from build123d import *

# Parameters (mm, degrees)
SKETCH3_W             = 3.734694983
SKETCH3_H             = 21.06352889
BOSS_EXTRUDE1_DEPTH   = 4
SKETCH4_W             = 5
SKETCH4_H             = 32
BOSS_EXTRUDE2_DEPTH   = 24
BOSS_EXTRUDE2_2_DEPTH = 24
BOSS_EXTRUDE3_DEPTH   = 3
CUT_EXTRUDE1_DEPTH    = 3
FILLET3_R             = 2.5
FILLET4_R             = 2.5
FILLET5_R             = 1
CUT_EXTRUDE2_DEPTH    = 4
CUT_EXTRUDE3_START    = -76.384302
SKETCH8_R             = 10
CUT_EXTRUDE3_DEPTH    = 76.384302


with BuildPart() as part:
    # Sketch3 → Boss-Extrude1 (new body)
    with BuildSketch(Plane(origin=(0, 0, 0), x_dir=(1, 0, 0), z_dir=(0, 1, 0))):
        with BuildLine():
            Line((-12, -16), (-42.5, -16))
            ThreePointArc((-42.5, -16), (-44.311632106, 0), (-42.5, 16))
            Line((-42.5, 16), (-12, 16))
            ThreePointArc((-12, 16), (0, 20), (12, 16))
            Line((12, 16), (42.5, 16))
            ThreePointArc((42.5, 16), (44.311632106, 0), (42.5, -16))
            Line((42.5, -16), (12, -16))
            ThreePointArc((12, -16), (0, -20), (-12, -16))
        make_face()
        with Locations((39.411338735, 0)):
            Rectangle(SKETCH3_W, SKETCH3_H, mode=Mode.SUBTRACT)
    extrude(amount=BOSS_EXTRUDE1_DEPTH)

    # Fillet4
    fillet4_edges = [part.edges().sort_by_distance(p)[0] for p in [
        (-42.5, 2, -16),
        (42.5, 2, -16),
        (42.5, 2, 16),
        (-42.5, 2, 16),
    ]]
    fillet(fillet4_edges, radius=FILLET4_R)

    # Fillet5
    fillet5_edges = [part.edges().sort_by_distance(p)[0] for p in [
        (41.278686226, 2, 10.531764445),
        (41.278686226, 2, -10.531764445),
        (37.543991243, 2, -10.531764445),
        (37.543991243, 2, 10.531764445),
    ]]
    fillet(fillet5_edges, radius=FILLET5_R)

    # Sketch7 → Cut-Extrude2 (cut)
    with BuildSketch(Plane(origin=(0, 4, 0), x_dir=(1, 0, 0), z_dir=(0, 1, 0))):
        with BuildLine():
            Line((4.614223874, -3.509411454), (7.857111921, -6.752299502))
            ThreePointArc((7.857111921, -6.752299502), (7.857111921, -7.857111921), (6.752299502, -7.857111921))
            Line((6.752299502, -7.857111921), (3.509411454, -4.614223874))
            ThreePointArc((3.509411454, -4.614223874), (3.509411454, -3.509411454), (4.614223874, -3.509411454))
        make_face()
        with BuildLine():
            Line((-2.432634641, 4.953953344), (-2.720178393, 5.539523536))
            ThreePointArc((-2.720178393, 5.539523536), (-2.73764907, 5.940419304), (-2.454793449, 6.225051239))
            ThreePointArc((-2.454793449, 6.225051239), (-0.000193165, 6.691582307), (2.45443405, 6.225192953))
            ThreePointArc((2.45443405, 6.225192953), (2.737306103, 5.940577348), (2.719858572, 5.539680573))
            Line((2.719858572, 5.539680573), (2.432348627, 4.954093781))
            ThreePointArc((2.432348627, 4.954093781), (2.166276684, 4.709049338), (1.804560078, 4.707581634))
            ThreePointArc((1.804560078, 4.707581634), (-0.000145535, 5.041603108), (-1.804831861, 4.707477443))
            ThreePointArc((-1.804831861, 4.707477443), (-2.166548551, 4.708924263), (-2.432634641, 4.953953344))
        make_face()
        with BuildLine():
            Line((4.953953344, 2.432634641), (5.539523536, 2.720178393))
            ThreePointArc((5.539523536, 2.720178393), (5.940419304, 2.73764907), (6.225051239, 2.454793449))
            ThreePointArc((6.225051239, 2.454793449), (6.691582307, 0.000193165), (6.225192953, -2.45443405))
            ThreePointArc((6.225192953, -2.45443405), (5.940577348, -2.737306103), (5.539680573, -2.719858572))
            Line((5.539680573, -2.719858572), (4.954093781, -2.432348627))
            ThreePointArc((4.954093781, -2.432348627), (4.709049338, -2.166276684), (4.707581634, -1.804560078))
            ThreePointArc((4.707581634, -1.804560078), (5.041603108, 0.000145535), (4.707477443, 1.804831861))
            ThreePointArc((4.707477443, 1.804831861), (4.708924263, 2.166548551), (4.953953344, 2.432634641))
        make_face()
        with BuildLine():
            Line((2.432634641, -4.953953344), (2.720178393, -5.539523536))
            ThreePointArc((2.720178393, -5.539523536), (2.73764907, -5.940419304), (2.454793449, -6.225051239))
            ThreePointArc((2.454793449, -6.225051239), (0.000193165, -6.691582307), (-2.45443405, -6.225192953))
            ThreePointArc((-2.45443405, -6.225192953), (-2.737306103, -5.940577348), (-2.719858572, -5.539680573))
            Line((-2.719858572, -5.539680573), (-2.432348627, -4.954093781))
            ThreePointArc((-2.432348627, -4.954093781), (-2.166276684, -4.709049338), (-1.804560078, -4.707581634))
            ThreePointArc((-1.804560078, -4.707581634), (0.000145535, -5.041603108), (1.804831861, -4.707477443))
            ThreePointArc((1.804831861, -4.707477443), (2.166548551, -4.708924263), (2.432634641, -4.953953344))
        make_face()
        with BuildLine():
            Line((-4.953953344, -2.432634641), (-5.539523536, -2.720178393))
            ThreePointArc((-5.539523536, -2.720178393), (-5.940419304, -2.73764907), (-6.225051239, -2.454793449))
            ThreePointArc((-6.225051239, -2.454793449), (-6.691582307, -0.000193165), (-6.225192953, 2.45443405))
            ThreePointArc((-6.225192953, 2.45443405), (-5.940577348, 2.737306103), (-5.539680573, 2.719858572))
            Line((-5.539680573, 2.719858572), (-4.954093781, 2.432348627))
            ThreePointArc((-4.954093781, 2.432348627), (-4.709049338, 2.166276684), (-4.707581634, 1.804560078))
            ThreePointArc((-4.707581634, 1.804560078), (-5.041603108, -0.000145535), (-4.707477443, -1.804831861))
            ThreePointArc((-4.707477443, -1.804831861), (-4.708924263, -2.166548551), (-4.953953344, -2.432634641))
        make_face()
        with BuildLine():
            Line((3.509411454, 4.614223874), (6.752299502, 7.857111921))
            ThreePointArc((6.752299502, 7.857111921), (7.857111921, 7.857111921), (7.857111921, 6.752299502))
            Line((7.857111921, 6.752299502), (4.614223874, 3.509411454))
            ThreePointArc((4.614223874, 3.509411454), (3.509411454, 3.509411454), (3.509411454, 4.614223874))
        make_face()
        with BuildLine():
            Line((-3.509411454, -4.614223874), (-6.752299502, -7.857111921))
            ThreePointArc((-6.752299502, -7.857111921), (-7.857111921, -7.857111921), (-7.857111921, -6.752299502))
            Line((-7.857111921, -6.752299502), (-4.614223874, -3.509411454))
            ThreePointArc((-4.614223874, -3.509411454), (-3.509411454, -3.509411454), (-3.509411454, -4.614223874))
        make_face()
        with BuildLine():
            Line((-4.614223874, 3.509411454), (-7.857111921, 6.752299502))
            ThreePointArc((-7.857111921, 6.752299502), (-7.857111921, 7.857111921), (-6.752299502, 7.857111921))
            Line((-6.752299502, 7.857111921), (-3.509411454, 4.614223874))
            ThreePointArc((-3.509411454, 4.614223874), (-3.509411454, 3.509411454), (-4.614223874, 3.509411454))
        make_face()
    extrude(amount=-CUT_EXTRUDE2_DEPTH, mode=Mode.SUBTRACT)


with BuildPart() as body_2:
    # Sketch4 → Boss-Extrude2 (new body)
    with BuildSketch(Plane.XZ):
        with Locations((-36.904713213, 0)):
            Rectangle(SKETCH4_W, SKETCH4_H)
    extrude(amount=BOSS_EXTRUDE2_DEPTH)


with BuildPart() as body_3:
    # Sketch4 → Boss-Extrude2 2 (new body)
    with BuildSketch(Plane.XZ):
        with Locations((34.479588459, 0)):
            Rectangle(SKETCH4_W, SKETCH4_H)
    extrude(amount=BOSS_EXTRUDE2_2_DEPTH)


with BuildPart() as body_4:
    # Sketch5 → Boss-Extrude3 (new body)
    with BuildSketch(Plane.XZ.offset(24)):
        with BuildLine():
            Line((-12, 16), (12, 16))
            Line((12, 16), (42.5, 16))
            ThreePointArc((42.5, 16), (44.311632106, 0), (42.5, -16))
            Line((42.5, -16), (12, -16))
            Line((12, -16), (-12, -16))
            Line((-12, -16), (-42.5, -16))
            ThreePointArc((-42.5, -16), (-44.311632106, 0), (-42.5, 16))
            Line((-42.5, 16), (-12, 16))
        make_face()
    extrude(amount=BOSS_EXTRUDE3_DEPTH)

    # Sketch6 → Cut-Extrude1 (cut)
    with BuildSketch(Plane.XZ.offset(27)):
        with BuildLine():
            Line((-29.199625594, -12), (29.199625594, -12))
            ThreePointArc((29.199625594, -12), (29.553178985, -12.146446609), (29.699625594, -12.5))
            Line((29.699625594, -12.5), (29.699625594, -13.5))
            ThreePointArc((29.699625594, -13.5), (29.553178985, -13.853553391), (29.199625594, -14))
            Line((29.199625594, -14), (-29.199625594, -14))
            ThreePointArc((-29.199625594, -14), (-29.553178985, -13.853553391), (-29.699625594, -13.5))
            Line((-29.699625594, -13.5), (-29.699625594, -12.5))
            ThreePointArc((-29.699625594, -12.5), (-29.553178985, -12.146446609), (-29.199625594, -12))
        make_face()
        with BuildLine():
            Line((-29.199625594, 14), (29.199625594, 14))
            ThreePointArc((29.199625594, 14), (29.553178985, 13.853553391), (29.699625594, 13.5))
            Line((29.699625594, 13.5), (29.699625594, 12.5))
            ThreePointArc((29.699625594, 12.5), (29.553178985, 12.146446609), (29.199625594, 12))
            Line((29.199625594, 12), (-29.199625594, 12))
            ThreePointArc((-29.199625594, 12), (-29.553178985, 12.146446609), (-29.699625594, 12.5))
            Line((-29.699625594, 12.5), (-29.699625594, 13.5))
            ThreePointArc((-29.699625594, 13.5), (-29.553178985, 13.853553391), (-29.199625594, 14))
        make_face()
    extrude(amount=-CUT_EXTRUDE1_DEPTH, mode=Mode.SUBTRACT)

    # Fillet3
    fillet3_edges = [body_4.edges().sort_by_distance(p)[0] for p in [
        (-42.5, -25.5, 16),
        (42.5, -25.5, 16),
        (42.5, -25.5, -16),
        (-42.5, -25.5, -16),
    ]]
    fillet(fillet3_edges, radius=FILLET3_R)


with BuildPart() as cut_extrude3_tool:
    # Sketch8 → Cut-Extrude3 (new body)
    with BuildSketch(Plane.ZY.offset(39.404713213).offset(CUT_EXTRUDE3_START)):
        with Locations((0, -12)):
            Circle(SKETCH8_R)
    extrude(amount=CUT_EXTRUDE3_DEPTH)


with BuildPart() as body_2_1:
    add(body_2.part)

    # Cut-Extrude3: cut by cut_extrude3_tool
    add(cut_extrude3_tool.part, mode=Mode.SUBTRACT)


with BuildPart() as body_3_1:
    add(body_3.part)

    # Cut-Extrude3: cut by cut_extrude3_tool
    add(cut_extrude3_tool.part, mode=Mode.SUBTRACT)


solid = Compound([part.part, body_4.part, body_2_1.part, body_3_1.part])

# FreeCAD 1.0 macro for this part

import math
import FreeCAD as App
import Part
import Sketcher
Q = App.Units.Quantity


def edges_at(feature, points):
    """Names of the edges that pass closest to the given points."""
    edges = feature.Shape.Edges
    near = lambda p: min(range(len(edges)), key=lambda i: edges[i].distToShape(Part.Vertex(*p))[0])
    return sorted({f"Edge{near(p) + 1}" for p in points})

doc = App.newDocument("Part")
params = doc.addObject("Spreadsheet::Sheet", "Params")
for row, (alias, value) in enumerate([
    ("sketch1_radius", "20 mm"),
    ("sketch1_width", "30.5 mm"),
    ("pad1_length", "4 mm"),
    ("fillet_radius", "2.5 mm"),
    ("fillet2_radius", "1 mm"),
    ("sketch2_radius", "0.5 mm"),
    ("pocket1_length", "4 mm"),
    ("sketch3_width", "5 mm"),
    ("sketch3_height", "32 mm"),
    ("pad2_length", "24 mm"),
    ("sketch4_width", "5 mm"),
    ("sketch4_height", "32 mm"),
    ("pad3_length", "24 mm"),
    ("sketch5_width", "85 mm"),
    ("pad4_length", "3 mm"),
    ("sketch6_radius", "0.5 mm"),
    ("sketch6_height", "1 mm"),
    ("pocket2_length", "3 mm"),
    ("fillet3_radius", "2.5 mm"),
    ("sketch7_diameter", "20 mm"),
    ("pad5_length", "76.384302 mm"),
], start=1):
    params.set(f"A{row}", alias)
    params.set(f"B{row}", "=" + value)
    params.setAlias(f"B{row}", alias)

body = doc.addObject("PartDesign::Body", "Body")

# Sketch on XZ plane
sketch1 = body.newObject("Sketcher::SketchObject", "Sketch")
sketch1.AttachmentSupport = (doc.getObject("XZ_Plane"), [""])
sketch1.MapMode = "FlatFace"
sketch1.addGeometry(Part.LineSegment(App.Vector(-42.5, 16, 0), App.Vector(-12, 16, 0)), False)
sketch1.addGeometry(Part.ArcOfCircle(Part.Circle(App.Vector(0, 0, 0), App.Vector(0, 0, 1), 20), math.radians(53), math.radians(127)), False)
sketch1.addGeometry(Part.LineSegment(App.Vector(12, 16, 0), App.Vector(42.5, 16, 0)), False)
sketch1.addGeometry(Part.ArcOfCircle(Part.Circle(App.Vector(-27.2, 0, 0), App.Vector(0, 0, 1), 71.6), math.radians(-13), math.radians(13)), False)
sketch1.addGeometry(Part.LineSegment(App.Vector(42.5, -16, 0), App.Vector(12, -16, 0)), False)
sketch1.addGeometry(Part.ArcOfCircle(Part.Circle(App.Vector(0, 0, 0), App.Vector(0, 0, 1), 20), math.radians(-127), math.radians(-53)), False)
sketch1.addGeometry(Part.LineSegment(App.Vector(-12, -16, 0), App.Vector(-42.5, -16, 0)), False)
sketch1.addGeometry(Part.ArcOfCircle(Part.Circle(App.Vector(27.2, 0, 0), App.Vector(0, 0, 1), 71.6), math.radians(167), math.radians(193)), False)
sketch1.addGeometry(Part.LineSegment(App.Vector(37.5, 10.5, 0), App.Vector(37.5, -10.5, 0)), False)
sketch1.addGeometry(Part.LineSegment(App.Vector(37.5, -10.5, 0), App.Vector(41.3, -10.5, 0)), False)
sketch1.addGeometry(Part.LineSegment(App.Vector(41.3, -10.5, 0), App.Vector(41.3, 10.5, 0)), False)
sketch1.addGeometry(Part.LineSegment(App.Vector(41.3, 10.5, 0), App.Vector(37.5, 10.5, 0)), False)
sketch1.addConstraint(Sketcher.Constraint("Coincident", 0, 2, 1, 2))
sketch1.addConstraint(Sketcher.Constraint("Coincident", 1, 1, 2, 1))
sketch1.addConstraint(Sketcher.Constraint("Coincident", 2, 2, 3, 2))
sketch1.addConstraint(Sketcher.Constraint("Coincident", 3, 1, 4, 1))
sketch1.addConstraint(Sketcher.Constraint("Coincident", 4, 2, 5, 2))
sketch1.addConstraint(Sketcher.Constraint("Coincident", 5, 1, 6, 1))
sketch1.addConstraint(Sketcher.Constraint("Coincident", 6, 2, 7, 2))
sketch1.addConstraint(Sketcher.Constraint("Coincident", 7, 1, 0, 1))
sketch1.addConstraint(Sketcher.Constraint("Coincident", 8, 2, 9, 1))
sketch1.addConstraint(Sketcher.Constraint("Coincident", 9, 2, 10, 1))
sketch1.addConstraint(Sketcher.Constraint("Coincident", 10, 2, 11, 1))
sketch1.addConstraint(Sketcher.Constraint("Coincident", 11, 2, 8, 1))
sketch1.addConstraint(Sketcher.Constraint("Horizontal", 0))
sketch1.addConstraint(Sketcher.Constraint("Horizontal", 2))
sketch1.addConstraint(Sketcher.Constraint("Horizontal", 4))
sketch1.addConstraint(Sketcher.Constraint("Horizontal", 6))
sketch1.addConstraint(Sketcher.Constraint("Vertical", 8))
sketch1.addConstraint(Sketcher.Constraint("Horizontal", 9))
sketch1.addConstraint(Sketcher.Constraint("Vertical", 10))
sketch1.addConstraint(Sketcher.Constraint("Horizontal", 11))
sketch1.addConstraint(Sketcher.Constraint("Coincident", 1, 3, -1, 1))
sketch1.addConstraint(Sketcher.Constraint("Coincident", 5, 3, -1, 1))
sketch1.addConstraint(Sketcher.Constraint("Equal", 1, 5))
sketch1.addConstraint(Sketcher.Constraint("Equal", 3, 7))
sketch1.addConstraint(Sketcher.Constraint("Symmetric", 3, 3, 7, 3, -1, 1))
sketch1.addConstraint(Sketcher.Constraint("Symmetric", 3, 1, 6, 2, -2))
sketch1.addConstraint(Sketcher.Constraint("Horizontal", 0, 2, 1, 1))
sketch1.addConstraint(Sketcher.Constraint("Vertical", 2, 2, 3, 1))
sketch1.addConstraint(Sketcher.Constraint("Radius", 1, Q("20 mm")))
sketch1.addConstraint(Sketcher.Constraint("DistanceX", 0, 1, 0, 2, Q("30.5 mm")))
sketch1.addConstraint(Sketcher.Constraint("DistanceX", 0, 2, -1, 1, Q("12 mm")))
sketch1.addConstraint(Sketcher.Constraint("Radius", 3, Q("71.560338 mm")))
sketch1.addConstraint(Sketcher.Constraint("DistanceY", 8, 2, 8, 1, Q("21.063529 mm")))
sketch1.addConstraint(Sketcher.Constraint("DistanceX", 9, 1, 9, 2, Q("3.734695 mm")))
sketch1.addConstraint(Sketcher.Constraint("DistanceX", -1, 1, 8, 2, Q("37.543991 mm")))
sketch1.addConstraint(Sketcher.Constraint("DistanceY", 8, 2, -1, 1, Q("10.531764 mm")))
sketch1.setExpression("Constraints[28]", "Params.sketch1_radius")
sketch1.setExpression("Constraints[29]", "Params.sketch1_width")
pad1 = body.newObject("PartDesign::Pad", "Pad")
pad1.Profile = sketch1
pad1.setExpression("Length", "Params.pad1_length")
pad1.Reversed = True
doc.recompute()

fillet = body.newObject("PartDesign::Fillet", "Fillet")
fillet.Base = (pad1, edges_at(pad1, [
    (-42.5, 2, -16),
    (42.5, 2, -16),
    (42.5, 2, 16),
    (-42.5, 2, 16),
]))
fillet.setExpression("Radius", "Params.fillet_radius")
doc.recompute()

fillet2 = body.newObject("PartDesign::Fillet", "Fillet001")
fillet2.Base = (fillet, edges_at(fillet, [
    (41.279, 2, 10.532),
    (41.279, 2, -10.532),
    (37.544, 2, -10.532),
    (37.544, 2, 10.532),
]))
fillet2.setExpression("Radius", "Params.fillet2_radius")

# Sketch on XZ plane
sketch2 = body.newObject("Sketcher::SketchObject", "Sketch001")
sketch2.AttachmentSupport = (doc.getObject("XZ_Plane"), [""])
sketch2.MapMode = "FlatFace"
sketch2.AttachmentOffset = App.Placement(App.Vector(0, 0, -4), App.Rotation())
sketch2.addGeometry(Part.LineSegment(App.Vector(7.86, 6.75, 0), App.Vector(4.61, 3.51, 0)), False)
sketch2.addGeometry(Part.ArcOfCircle(Part.Circle(App.Vector(4.06, 4.06, 0), App.Vector(0, 0, 1), 0.78), math.radians(135), math.radians(315)), False)
sketch2.addGeometry(Part.LineSegment(App.Vector(3.51, 4.61, 0), App.Vector(6.75, 7.86, 0)), False)
sketch2.addGeometry(Part.ArcOfCircle(Part.Circle(App.Vector(7.3, 7.3, 0), App.Vector(0, 0, 1), 0.78), math.radians(-45), math.radians(135)), False)
sketch2.addGeometry(Part.LineSegment(App.Vector(-2.72, -5.54, 0), App.Vector(-2.43, -4.95, 0)), False)
sketch2.addGeometry(Part.ArcOfCircle(Part.Circle(App.Vector(-1.98, -5.17, 0), App.Vector(0, 0, 1), 0.5), math.radians(69), math.radians(154)), False)
sketch2.addGeometry(Part.ArcOfCircle(Part.Circle(App.Vector(0, 0, 0), App.Vector(0, 0, 1), 5.04), math.radians(-111), math.radians(-69)), False)
sketch2.addGeometry(Part.ArcOfCircle(Part.Circle(App.Vector(1.98, -5.17, 0), App.Vector(0, 0, 1), 0.5), math.radians(26), math.radians(111)), False)
sketch2.addGeometry(Part.LineSegment(App.Vector(2.43, -4.95, 0), App.Vector(2.72, -5.54, 0)), False)
sketch2.addGeometry(Part.ArcOfCircle(Part.Circle(App.Vector(2.27, -5.76, 0), App.Vector(0, 0, 1), 0.5), math.radians(-68), math.radians(26)), False)
sketch2.addGeometry(Part.ArcOfCircle(Part.Circle(App.Vector(0, 0, 0), App.Vector(0, 0, 1), 6.69), math.radians(-112), math.radians(-68)), False)
sketch2.addGeometry(Part.ArcOfCircle(Part.Circle(App.Vector(-2.27, -5.76, 0), App.Vector(0, 0, 1), 0.5), math.radians(154), math.radians(248)), False)
sketch2.addGeometry(Part.LineSegment(App.Vector(5.54, -2.72, 0), App.Vector(4.95, -2.43, 0)), False)
sketch2.addGeometry(Part.ArcOfCircle(Part.Circle(App.Vector(5.17, -1.98, 0), App.Vector(0, 0, 1), 0.5), math.radians(159), math.radians(244)), False)
sketch2.addGeometry(Part.ArcOfCircle(Part.Circle(App.Vector(0, 0, 0), App.Vector(0, 0, 1), 5.04), math.radians(-21), math.radians(21)), False)
sketch2.addGeometry(Part.ArcOfCircle(Part.Circle(App.Vector(5.17, 1.98, 0), App.Vector(0, 0, 1), 0.5), math.radians(116), math.radians(201)), False)
sketch2.addGeometry(Part.LineSegment(App.Vector(4.95, 2.43, 0), App.Vector(5.54, 2.72, 0)), False)
sketch2.addGeometry(Part.ArcOfCircle(Part.Circle(App.Vector(5.76, 2.27, 0), App.Vector(0, 0, 1), 0.5), math.radians(22), math.radians(116)), False)
sketch2.addGeometry(Part.ArcOfCircle(Part.Circle(App.Vector(0, 0, 0), App.Vector(0, 0, 1), 6.69), math.radians(-22), math.radians(22)), False)
sketch2.addGeometry(Part.ArcOfCircle(Part.Circle(App.Vector(5.76, -2.27, 0), App.Vector(0, 0, 1), 0.5), math.radians(-116), math.radians(-22)), False)
sketch2.addGeometry(Part.LineSegment(App.Vector(2.72, 5.54, 0), App.Vector(2.43, 4.95, 0)), False)
sketch2.addGeometry(Part.ArcOfCircle(Part.Circle(App.Vector(1.98, 5.17, 0), App.Vector(0, 0, 1), 0.5), math.radians(-111), math.radians(-26)), False)
sketch2.addGeometry(Part.ArcOfCircle(Part.Circle(App.Vector(0, 0, 0), App.Vector(0, 0, 1), 5.04), math.radians(69), math.radians(111)), False)
sketch2.addGeometry(Part.ArcOfCircle(Part.Circle(App.Vector(-1.98, 5.17, 0), App.Vector(0, 0, 1), 0.5), math.radians(-154), math.radians(-69)), False)
sketch2.addGeometry(Part.LineSegment(App.Vector(-2.43, 4.95, 0), App.Vector(-2.72, 5.54, 0)), False)
sketch2.addGeometry(Part.ArcOfCircle(Part.Circle(App.Vector(-2.27, 5.76, 0), App.Vector(0, 0, 1), 0.5), math.radians(112), math.radians(206)), False)
sketch2.addGeometry(Part.ArcOfCircle(Part.Circle(App.Vector(0, 0, 0), App.Vector(0, 0, 1), 6.69), math.radians(68), math.radians(112)), False)
sketch2.addGeometry(Part.ArcOfCircle(Part.Circle(App.Vector(2.27, 5.76, 0), App.Vector(0, 0, 1), 0.5), math.radians(-26), math.radians(68)), False)
sketch2.addGeometry(Part.LineSegment(App.Vector(-5.54, 2.72, 0), App.Vector(-4.95, 2.43, 0)), False)
sketch2.addGeometry(Part.ArcOfCircle(Part.Circle(App.Vector(-5.17, 1.98, 0), App.Vector(0, 0, 1), 0.5), math.radians(-21), math.radians(64)), False)
sketch2.addGeometry(Part.ArcOfCircle(Part.Circle(App.Vector(0, 0, 0), App.Vector(0, 0, 1), 5.04), math.radians(159), math.radians(201)), False)
sketch2.addGeometry(Part.ArcOfCircle(Part.Circle(App.Vector(-5.17, -1.98, 0), App.Vector(0, 0, 1), 0.5), math.radians(-64), math.radians(21)), False)
sketch2.addGeometry(Part.LineSegment(App.Vector(-4.95, -2.43, 0), App.Vector(-5.54, -2.72, 0)), False)
sketch2.addGeometry(Part.ArcOfCircle(Part.Circle(App.Vector(-5.76, -2.27, 0), App.Vector(0, 0, 1), 0.5), math.radians(-158), math.radians(-64)), False)
sketch2.addGeometry(Part.ArcOfCircle(Part.Circle(App.Vector(0, 0, 0), App.Vector(0, 0, 1), 6.69), math.radians(158), math.radians(202)), False)
sketch2.addGeometry(Part.ArcOfCircle(Part.Circle(App.Vector(-5.76, 2.27, 0), App.Vector(0, 0, 1), 0.5), math.radians(64), math.radians(158)), False)
sketch2.addGeometry(Part.LineSegment(App.Vector(6.75, -7.86, 0), App.Vector(3.51, -4.61, 0)), False)
sketch2.addGeometry(Part.ArcOfCircle(Part.Circle(App.Vector(4.06, -4.06, 0), App.Vector(0, 0, 1), 0.78), math.radians(45), math.radians(225)), False)
sketch2.addGeometry(Part.LineSegment(App.Vector(4.61, -3.51, 0), App.Vector(7.86, -6.75, 0)), False)
sketch2.addGeometry(Part.ArcOfCircle(Part.Circle(App.Vector(7.3, -7.3, 0), App.Vector(0, 0, 1), 0.78), math.radians(-135), math.radians(45)), False)
sketch2.addGeometry(Part.LineSegment(App.Vector(-6.75, 7.86, 0), App.Vector(-3.51, 4.61, 0)), False)
sketch2.addGeometry(Part.ArcOfCircle(Part.Circle(App.Vector(-4.06, 4.06, 0), App.Vector(0, 0, 1), 0.78), math.radians(-135), math.radians(45)), False)
sketch2.addGeometry(Part.LineSegment(App.Vector(-4.61, 3.51, 0), App.Vector(-7.86, 6.75, 0)), False)
sketch2.addGeometry(Part.ArcOfCircle(Part.Circle(App.Vector(-7.3, 7.3, 0), App.Vector(0, 0, 1), 0.78), math.radians(45), math.radians(225)), False)
sketch2.addGeometry(Part.LineSegment(App.Vector(-7.86, -6.75, 0), App.Vector(-4.61, -3.51, 0)), False)
sketch2.addGeometry(Part.ArcOfCircle(Part.Circle(App.Vector(-4.06, -4.06, 0), App.Vector(0, 0, 1), 0.78), math.radians(-45), math.radians(135)), False)
sketch2.addGeometry(Part.LineSegment(App.Vector(-3.51, -4.61, 0), App.Vector(-6.75, -7.86, 0)), False)
sketch2.addGeometry(Part.ArcOfCircle(Part.Circle(App.Vector(-7.3, -7.3, 0), App.Vector(0, 0, 1), 0.78), math.radians(135), math.radians(315)), False)
sketch2.addConstraint(Sketcher.Constraint("Tangent", 0, 2, 1, 2))
sketch2.addConstraint(Sketcher.Constraint("Tangent", 1, 1, 2, 1))
sketch2.addConstraint(Sketcher.Constraint("Tangent", 2, 2, 3, 2))
sketch2.addConstraint(Sketcher.Constraint("Tangent", 3, 1, 0, 1))
sketch2.addConstraint(Sketcher.Constraint("Tangent", 4, 2, 5, 2))
sketch2.addConstraint(Sketcher.Constraint("Tangent", 5, 1, 6, 1))
sketch2.addConstraint(Sketcher.Constraint("Tangent", 6, 2, 7, 2))
sketch2.addConstraint(Sketcher.Constraint("Tangent", 7, 1, 8, 1))
sketch2.addConstraint(Sketcher.Constraint("Tangent", 8, 2, 9, 2))
sketch2.addConstraint(Sketcher.Constraint("Tangent", 9, 1, 10, 2))
sketch2.addConstraint(Sketcher.Constraint("Tangent", 10, 1, 11, 2))
sketch2.addConstraint(Sketcher.Constraint("Tangent", 11, 1, 4, 1))
sketch2.addConstraint(Sketcher.Constraint("Tangent", 12, 2, 13, 2))
sketch2.addConstraint(Sketcher.Constraint("Tangent", 13, 1, 14, 1))
sketch2.addConstraint(Sketcher.Constraint("Tangent", 14, 2, 15, 2))
sketch2.addConstraint(Sketcher.Constraint("Tangent", 15, 1, 16, 1))
sketch2.addConstraint(Sketcher.Constraint("Tangent", 16, 2, 17, 2))
sketch2.addConstraint(Sketcher.Constraint("Tangent", 17, 1, 18, 2))
sketch2.addConstraint(Sketcher.Constraint("Tangent", 18, 1, 19, 2))
sketch2.addConstraint(Sketcher.Constraint("Tangent", 19, 1, 12, 1))
sketch2.addConstraint(Sketcher.Constraint("Tangent", 20, 2, 21, 2))
sketch2.addConstraint(Sketcher.Constraint("Tangent", 21, 1, 22, 1))
sketch2.addConstraint(Sketcher.Constraint("Tangent", 22, 2, 23, 2))
sketch2.addConstraint(Sketcher.Constraint("Tangent", 23, 1, 24, 1))
sketch2.addConstraint(Sketcher.Constraint("Tangent", 24, 2, 25, 2))
sketch2.addConstraint(Sketcher.Constraint("Tangent", 25, 1, 26, 2))
sketch2.addConstraint(Sketcher.Constraint("Tangent", 26, 1, 27, 2))
sketch2.addConstraint(Sketcher.Constraint("Tangent", 27, 1, 20, 1))
sketch2.addConstraint(Sketcher.Constraint("Tangent", 28, 2, 29, 2))
sketch2.addConstraint(Sketcher.Constraint("Tangent", 29, 1, 30, 1))
sketch2.addConstraint(Sketcher.Constraint("Tangent", 30, 2, 31, 2))
sketch2.addConstraint(Sketcher.Constraint("Tangent", 31, 1, 32, 1))
sketch2.addConstraint(Sketcher.Constraint("Tangent", 32, 2, 33, 2))
sketch2.addConstraint(Sketcher.Constraint("Tangent", 33, 1, 34, 2))
sketch2.addConstraint(Sketcher.Constraint("Tangent", 34, 1, 35, 2))
sketch2.addConstraint(Sketcher.Constraint("Tangent", 35, 1, 28, 1))
sketch2.addConstraint(Sketcher.Constraint("Tangent", 36, 2, 37, 2))
sketch2.addConstraint(Sketcher.Constraint("Tangent", 37, 1, 38, 1))
sketch2.addConstraint(Sketcher.Constraint("Tangent", 38, 2, 39, 2))
sketch2.addConstraint(Sketcher.Constraint("Tangent", 39, 1, 36, 1))
sketch2.addConstraint(Sketcher.Constraint("Tangent", 40, 2, 41, 2))
sketch2.addConstraint(Sketcher.Constraint("Tangent", 41, 1, 42, 1))
sketch2.addConstraint(Sketcher.Constraint("Tangent", 42, 2, 43, 2))
sketch2.addConstraint(Sketcher.Constraint("Tangent", 43, 1, 40, 1))
sketch2.addConstraint(Sketcher.Constraint("Tangent", 44, 2, 45, 2))
sketch2.addConstraint(Sketcher.Constraint("Tangent", 45, 1, 46, 1))
sketch2.addConstraint(Sketcher.Constraint("Tangent", 46, 2, 47, 2))
sketch2.addConstraint(Sketcher.Constraint("Tangent", 47, 1, 44, 1))
sketch2.addConstraint(Sketcher.Constraint("Coincident", 6, 3, -1, 1))
sketch2.addConstraint(Sketcher.Constraint("Coincident", 10, 3, -1, 1))
sketch2.addConstraint(Sketcher.Constraint("Coincident", 14, 3, -1, 1))
sketch2.addConstraint(Sketcher.Constraint("Coincident", 18, 3, -1, 1))
sketch2.addConstraint(Sketcher.Constraint("Coincident", 22, 3, -1, 1))
sketch2.addConstraint(Sketcher.Constraint("Coincident", 26, 3, -1, 1))
sketch2.addConstraint(Sketcher.Constraint("Coincident", 30, 3, -1, 1))
sketch2.addConstraint(Sketcher.Constraint("Coincident", 34, 3, -1, 1))
sketch2.addConstraint(Sketcher.Constraint("Equal", 1, 3))
sketch2.addConstraint(Sketcher.Constraint("Equal", 5, 7))
sketch2.addConstraint(Sketcher.Constraint("Equal", 7, 9))
sketch2.addConstraint(Sketcher.Constraint("Equal", 9, 11))
sketch2.addConstraint(Sketcher.Constraint("Equal", 11, 13))
sketch2.addConstraint(Sketcher.Constraint("Equal", 6, 14))
sketch2.addConstraint(Sketcher.Constraint("Equal", 13, 15))
sketch2.addConstraint(Sketcher.Constraint("Equal", 15, 17))
sketch2.addConstraint(Sketcher.Constraint("Equal", 10, 18))
sketch2.addConstraint(Sketcher.Constraint("Equal", 17, 19))
sketch2.addConstraint(Sketcher.Constraint("Equal", 19, 21))
sketch2.addConstraint(Sketcher.Constraint("Equal", 14, 22))
sketch2.addConstraint(Sketcher.Constraint("Equal", 21, 23))
sketch2.addConstraint(Sketcher.Constraint("Equal", 23, 25))
sketch2.addConstraint(Sketcher.Constraint("Equal", 18, 26))
sketch2.addConstraint(Sketcher.Constraint("Equal", 25, 27))
sketch2.addConstraint(Sketcher.Constraint("Equal", 27, 29))
sketch2.addConstraint(Sketcher.Constraint("Equal", 22, 30))
sketch2.addConstraint(Sketcher.Constraint("Equal", 29, 31))
sketch2.addConstraint(Sketcher.Constraint("Equal", 31, 33))
sketch2.addConstraint(Sketcher.Constraint("Equal", 26, 34))
sketch2.addConstraint(Sketcher.Constraint("Equal", 33, 35))
sketch2.addConstraint(Sketcher.Constraint("Equal", 3, 37))
sketch2.addConstraint(Sketcher.Constraint("Equal", 37, 39))
sketch2.addConstraint(Sketcher.Constraint("Equal", 39, 41))
sketch2.addConstraint(Sketcher.Constraint("Equal", 41, 43))
sketch2.addConstraint(Sketcher.Constraint("Equal", 43, 45))
sketch2.addConstraint(Sketcher.Constraint("Equal", 45, 47))
sketch2.addConstraint(Sketcher.Constraint("Symmetric", 37, 3, 41, 3, -1, 1))
sketch2.addConstraint(Sketcher.Constraint("Symmetric", 39, 3, 43, 3, -1, 1))
sketch2.addConstraint(Sketcher.Constraint("Symmetric", 1, 3, 45, 3, -1, 1))
sketch2.addConstraint(Sketcher.Constraint("Symmetric", 3, 3, 47, 3, -1, 1))
sketch2.addConstraint(Sketcher.Constraint("Symmetric", 4, 2, 20, 2, -1, 1))
sketch2.addConstraint(Sketcher.Constraint("Symmetric", 7, 1, 23, 1, -1, 1))
sketch2.addConstraint(Sketcher.Constraint("Symmetric", 12, 2, 28, 2, -1, 1))
sketch2.addConstraint(Sketcher.Constraint("Symmetric", 15, 1, 31, 1, -1, 1))
sketch2.addConstraint(Sketcher.Constraint("Symmetric", 1, 3, 41, 3, -2))
sketch2.addConstraint(Sketcher.Constraint("Symmetric", 3, 3, 43, 3, -2))
sketch2.addConstraint(Sketcher.Constraint("Perpendicular", 4, 12))
sketch2.addConstraint(Sketcher.Constraint("Perpendicular", 8, 16))
sketch2.addConstraint(Sketcher.Constraint("Perpendicular", 2, 36))
sketch2.addConstraint(Sketcher.Constraint("Equal", 4, 8))
sketch2.addConstraint(Sketcher.Constraint("Equal", 8, 12))
sketch2.addConstraint(Sketcher.Constraint("Equal", 12, 16))
sketch2.addConstraint(Sketcher.Constraint("Radius", 5, Q("0.5 mm")))
sketch2.addConstraint(Sketcher.Constraint("Angle", 8, Q("-63.85 deg")))
sketch2.addConstraint(Sketcher.Constraint("Radius", 1, Q("0.78122 mm")))
sketch2.addConstraint(Sketcher.Constraint("Radius", 6, Q("5.041603 mm")))
sketch2.addConstraint(Sketcher.Constraint("Radius", 10, Q("6.691582 mm")))
sketch2.addConstraint(Sketcher.Constraint("DistanceX", -1, 1, 2, 2, Q("6.7523 mm")))
sketch2.addConstraint(Sketcher.Constraint("DistanceY", -1, 1, 3, 1, Q("6.7523 mm")))
sketch2.addConstraint(Sketcher.Constraint("DistanceY", 5, 3, -1, 1, Q("5.174341 mm")))
sketch2.addConstraint(Sketcher.Constraint("DistanceY", 9, 3, -1, 1, Q("5.760042 mm")))
sketch2.addConstraint(Sketcher.Constraint("DistanceY", -1, 1, 0, 2, Q("3.509411 mm")))
sketch2.setExpression("Constraints[100]", "Params.sketch2_radius")
pocket1 = body.newObject("PartDesign::Pocket", "Pocket")
pocket1.Profile = sketch2
pocket1.setExpression("Length", "Params.pocket1_length")
pocket1.Reversed = True
body2 = doc.addObject("PartDesign::Body", "Body001")

# Sketch on XZ plane
sketch3 = body2.newObject("Sketcher::SketchObject", "Sketch002")
sketch3.AttachmentSupport = (doc.getObject("XZ_Plane001"), [""])
sketch3.MapMode = "FlatFace"
sketch3.addGeometry(Part.LineSegment(App.Vector(-39, 16, 0), App.Vector(-39, -16, 0)), False)
sketch3.addGeometry(Part.LineSegment(App.Vector(-39, -16, 0), App.Vector(-34, -16, 0)), False)
sketch3.addGeometry(Part.LineSegment(App.Vector(-34, -16, 0), App.Vector(-34, 16, 0)), False)
sketch3.addGeometry(Part.LineSegment(App.Vector(-34, 16, 0), App.Vector(-39, 16, 0)), False)
sketch3.addConstraint(Sketcher.Constraint("Coincident", 0, 2, 1, 1))
sketch3.addConstraint(Sketcher.Constraint("Coincident", 1, 2, 2, 1))
sketch3.addConstraint(Sketcher.Constraint("Coincident", 2, 2, 3, 1))
sketch3.addConstraint(Sketcher.Constraint("Coincident", 3, 2, 0, 1))
sketch3.addConstraint(Sketcher.Constraint("Vertical", 0))
sketch3.addConstraint(Sketcher.Constraint("Horizontal", 1))
sketch3.addConstraint(Sketcher.Constraint("Vertical", 2))
sketch3.addConstraint(Sketcher.Constraint("Horizontal", 3))
sketch3.addConstraint(Sketcher.Constraint("DistanceX", 1, 1, 1, 2, Q("5 mm")))
sketch3.addConstraint(Sketcher.Constraint("DistanceY", 0, 2, 0, 1, Q("32 mm")))
sketch3.addConstraint(Sketcher.Constraint("DistanceY", 0, 2, -1, 1, Q("16 mm")))
sketch3.addConstraint(Sketcher.Constraint("DistanceX", 0, 2, -1, 1, Q("39.404713 mm")))
sketch3.setExpression("Constraints[8]", "Params.sketch3_width")
sketch3.setExpression("Constraints[9]", "Params.sketch3_height")
pad2 = body2.newObject("PartDesign::Pad", "Pad001")
pad2.Profile = sketch3
pad2.setExpression("Length", "Params.pad2_length")
body3 = doc.addObject("PartDesign::Body", "Body002")

# Sketch on XZ plane
sketch4 = body3.newObject("Sketcher::SketchObject", "Sketch003")
sketch4.AttachmentSupport = (doc.getObject("XZ_Plane002"), [""])
sketch4.MapMode = "FlatFace"
sketch4.addGeometry(Part.LineSegment(App.Vector(32, 16, 0), App.Vector(32, -16, 0)), False)
sketch4.addGeometry(Part.LineSegment(App.Vector(32, -16, 0), App.Vector(37, -16, 0)), False)
sketch4.addGeometry(Part.LineSegment(App.Vector(37, -16, 0), App.Vector(37, 16, 0)), False)
sketch4.addGeometry(Part.LineSegment(App.Vector(37, 16, 0), App.Vector(32, 16, 0)), False)
sketch4.addConstraint(Sketcher.Constraint("Coincident", 0, 2, 1, 1))
sketch4.addConstraint(Sketcher.Constraint("Coincident", 1, 2, 2, 1))
sketch4.addConstraint(Sketcher.Constraint("Coincident", 2, 2, 3, 1))
sketch4.addConstraint(Sketcher.Constraint("Coincident", 3, 2, 0, 1))
sketch4.addConstraint(Sketcher.Constraint("Vertical", 0))
sketch4.addConstraint(Sketcher.Constraint("Horizontal", 1))
sketch4.addConstraint(Sketcher.Constraint("Vertical", 2))
sketch4.addConstraint(Sketcher.Constraint("Horizontal", 3))
sketch4.addConstraint(Sketcher.Constraint("DistanceX", 1, 1, 1, 2, Q("5 mm")))
sketch4.addConstraint(Sketcher.Constraint("DistanceY", 0, 2, 0, 1, Q("32 mm")))
sketch4.addConstraint(Sketcher.Constraint("DistanceY", 0, 2, -1, 1, Q("16 mm")))
sketch4.addConstraint(Sketcher.Constraint("DistanceX", -1, 1, 0, 2, Q("31.979588 mm")))
sketch4.setExpression("Constraints[8]", "Params.sketch4_width")
sketch4.setExpression("Constraints[9]", "Params.sketch4_height")
pad3 = body3.newObject("PartDesign::Pad", "Pad002")
pad3.Profile = sketch4
pad3.setExpression("Length", "Params.pad3_length")
body4 = doc.addObject("PartDesign::Body", "Body003")

# Sketch on XZ plane
sketch5 = body4.newObject("Sketcher::SketchObject", "Sketch004")
sketch5.AttachmentSupport = (doc.getObject("XZ_Plane003"), [""])
sketch5.MapMode = "FlatFace"
sketch5.AttachmentOffset = App.Placement(App.Vector(0, 0, 24), App.Rotation())
sketch5.addGeometry(Part.ArcOfCircle(Part.Circle(App.Vector(-27, 0, 0), App.Vector(0, 0, 1), 72), math.radians(-13), math.radians(13)), False)
sketch5.addGeometry(Part.LineSegment(App.Vector(42, 16, 0), App.Vector(-42, 16, 0)), False)
sketch5.addGeometry(Part.ArcOfCircle(Part.Circle(App.Vector(27, 0, 0), App.Vector(0, 0, 1), 72), math.radians(167), math.radians(193)), False)
sketch5.addGeometry(Part.LineSegment(App.Vector(-42, -16, 0), App.Vector(42, -16, 0)), False)
sketch5.addConstraint(Sketcher.Constraint("Coincident", 0, 2, 1, 1))
sketch5.addConstraint(Sketcher.Constraint("Coincident", 1, 2, 2, 1))
sketch5.addConstraint(Sketcher.Constraint("Coincident", 2, 2, 3, 1))
sketch5.addConstraint(Sketcher.Constraint("Coincident", 3, 2, 0, 1))
sketch5.addConstraint(Sketcher.Constraint("Horizontal", 1))
sketch5.addConstraint(Sketcher.Constraint("Horizontal", 3))
sketch5.addConstraint(Sketcher.Constraint("Equal", 0, 2))
sketch5.addConstraint(Sketcher.Constraint("Symmetric", 0, 3, 2, 3, -1, 1))
sketch5.addConstraint(Sketcher.Constraint("Symmetric", 1, 2, 2, 2, -1))
sketch5.addConstraint(Sketcher.Constraint("DistanceX", 1, 2, 1, 1, Q("85 mm")))
sketch5.addConstraint(Sketcher.Constraint("DistanceY", -1, 1, 0, 2, Q("16 mm")))
sketch5.addConstraint(Sketcher.Constraint("Radius", 0, Q("71.560338 mm")))
sketch5.setExpression("Constraints[9]", "Params.sketch5_width")
pad4 = body4.newObject("PartDesign::Pad", "Pad003")
pad4.Profile = sketch5
pad4.setExpression("Length", "Params.pad4_length")

# Sketch on XZ plane
sketch6 = body4.newObject("Sketcher::SketchObject", "Sketch005")
sketch6.AttachmentSupport = (doc.getObject("XZ_Plane003"), [""])
sketch6.MapMode = "FlatFace"
sketch6.AttachmentOffset = App.Placement(App.Vector(0, 0, 27), App.Rotation())
sketch6.addGeometry(Part.LineSegment(App.Vector(29.2, -12, 0), App.Vector(-29.2, -12, 0)), False)
sketch6.addGeometry(Part.ArcOfCircle(Part.Circle(App.Vector(-29.2, -12.5, 0), App.Vector(0, 0, 1), 0.5), math.radians(90), math.radians(180)), False)
sketch6.addGeometry(Part.LineSegment(App.Vector(-29.7, -12.5, 0), App.Vector(-29.7, -13.5, 0)), False)
sketch6.addGeometry(Part.ArcOfCircle(Part.Circle(App.Vector(-29.2, -13.5, 0), App.Vector(0, 0, 1), 0.5), math.radians(180), math.radians(270)), False)
sketch6.addGeometry(Part.LineSegment(App.Vector(-29.2, -14, 0), App.Vector(29.2, -14, 0)), False)
sketch6.addGeometry(Part.ArcOfCircle(Part.Circle(App.Vector(29.2, -13.5, 0), App.Vector(0, 0, 1), 0.5), math.radians(-90), math.radians(0)), False)
sketch6.addGeometry(Part.LineSegment(App.Vector(29.7, -13.5, 0), App.Vector(29.7, -12.5, 0)), False)
sketch6.addGeometry(Part.ArcOfCircle(Part.Circle(App.Vector(29.2, -12.5, 0), App.Vector(0, 0, 1), 0.5), math.radians(0), math.radians(90)), False)
sketch6.addGeometry(Part.LineSegment(App.Vector(29.2, 14, 0), App.Vector(-29.2, 14, 0)), False)
sketch6.addGeometry(Part.ArcOfCircle(Part.Circle(App.Vector(-29.2, 13.5, 0), App.Vector(0, 0, 1), 0.5), math.radians(90), math.radians(180)), False)
sketch6.addGeometry(Part.LineSegment(App.Vector(-29.7, 13.5, 0), App.Vector(-29.7, 12.5, 0)), False)
sketch6.addGeometry(Part.ArcOfCircle(Part.Circle(App.Vector(-29.2, 12.5, 0), App.Vector(0, 0, 1), 0.5), math.radians(180), math.radians(270)), False)
sketch6.addGeometry(Part.LineSegment(App.Vector(-29.2, 12, 0), App.Vector(29.2, 12, 0)), False)
sketch6.addGeometry(Part.ArcOfCircle(Part.Circle(App.Vector(29.2, 12.5, 0), App.Vector(0, 0, 1), 0.5), math.radians(-90), math.radians(0)), False)
sketch6.addGeometry(Part.LineSegment(App.Vector(29.7, 12.5, 0), App.Vector(29.7, 13.5, 0)), False)
sketch6.addGeometry(Part.ArcOfCircle(Part.Circle(App.Vector(29.2, 13.5, 0), App.Vector(0, 0, 1), 0.5), math.radians(0), math.radians(90)), False)
sketch6.addConstraint(Sketcher.Constraint("Tangent", 0, 2, 1, 1))
sketch6.addConstraint(Sketcher.Constraint("Tangent", 1, 2, 2, 1))
sketch6.addConstraint(Sketcher.Constraint("Tangent", 2, 2, 3, 1))
sketch6.addConstraint(Sketcher.Constraint("Tangent", 3, 2, 4, 1))
sketch6.addConstraint(Sketcher.Constraint("Tangent", 4, 2, 5, 1))
sketch6.addConstraint(Sketcher.Constraint("Tangent", 5, 2, 6, 1))
sketch6.addConstraint(Sketcher.Constraint("Tangent", 6, 2, 7, 1))
sketch6.addConstraint(Sketcher.Constraint("Tangent", 7, 2, 0, 1))
sketch6.addConstraint(Sketcher.Constraint("Tangent", 8, 2, 9, 1))
sketch6.addConstraint(Sketcher.Constraint("Tangent", 9, 2, 10, 1))
sketch6.addConstraint(Sketcher.Constraint("Tangent", 10, 2, 11, 1))
sketch6.addConstraint(Sketcher.Constraint("Tangent", 11, 2, 12, 1))
sketch6.addConstraint(Sketcher.Constraint("Tangent", 12, 2, 13, 1))
sketch6.addConstraint(Sketcher.Constraint("Tangent", 13, 2, 14, 1))
sketch6.addConstraint(Sketcher.Constraint("Tangent", 14, 2, 15, 1))
sketch6.addConstraint(Sketcher.Constraint("Tangent", 15, 2, 8, 1))
sketch6.addConstraint(Sketcher.Constraint("Horizontal", 0))
sketch6.addConstraint(Sketcher.Constraint("Vertical", 2))
sketch6.addConstraint(Sketcher.Constraint("Horizontal", 4))
sketch6.addConstraint(Sketcher.Constraint("Vertical", 6))
sketch6.addConstraint(Sketcher.Constraint("Horizontal", 8))
sketch6.addConstraint(Sketcher.Constraint("Vertical", 10))
sketch6.addConstraint(Sketcher.Constraint("Horizontal", 12))
sketch6.addConstraint(Sketcher.Constraint("Vertical", 14))
sketch6.addConstraint(Sketcher.Constraint("Equal", 1, 3))
sketch6.addConstraint(Sketcher.Constraint("Equal", 3, 5))
sketch6.addConstraint(Sketcher.Constraint("Equal", 5, 7))
sketch6.addConstraint(Sketcher.Constraint("Equal", 7, 9))
sketch6.addConstraint(Sketcher.Constraint("Equal", 9, 11))
sketch6.addConstraint(Sketcher.Constraint("Equal", 11, 13))
sketch6.addConstraint(Sketcher.Constraint("Equal", 13, 15))
sketch6.addConstraint(Sketcher.Constraint("Symmetric", 5, 3, 9, 3, -1, 1))
sketch6.addConstraint(Sketcher.Constraint("Symmetric", 1, 3, 13, 3, -1, 1))
sketch6.addConstraint(Sketcher.Constraint("Vertical", 3, 3, 9, 3))
sketch6.addConstraint(Sketcher.Constraint("Radius", 1, Q("0.5 mm")))
sketch6.addConstraint(Sketcher.Constraint("DistanceY", 2, 2, 2, 1, Q("1 mm")))
sketch6.addConstraint(Sketcher.Constraint("DistanceY", 0, 2, -1, 1, Q("12 mm")))
sketch6.addConstraint(Sketcher.Constraint("DistanceX", 0, 2, 0, 1, Q("58.399251 mm")))
sketch6.setExpression("Constraints[34]", "Params.sketch6_radius")
sketch6.setExpression("Constraints[35]", "Params.sketch6_height")
pocket2 = body4.newObject("PartDesign::Pocket", "Pocket001")
pocket2.Profile = sketch6
pocket2.setExpression("Length", "Params.pocket2_length")
doc.recompute()

fillet3 = body4.newObject("PartDesign::Fillet", "Fillet002")
fillet3.Base = (pocket2, edges_at(pocket2, [
    (-42.5, -25.5, 16),
    (42.5, -25.5, 16),
    (42.5, -25.5, -16),
    (-42.5, -25.5, -16),
]))
fillet3.setExpression("Radius", "Params.fillet3_radius")
body5 = doc.addObject("PartDesign::Body", "Body004")

# Sketch on YZ plane
sketch7 = body5.newObject("Sketcher::SketchObject", "Sketch006")
sketch7.AttachmentSupport = (doc.getObject("YZ_Plane004"), [""])
sketch7.MapMode = "FlatFace"
sketch7.AttachmentOffset = App.Placement(App.Vector(0, 0, 36.979589), App.Rotation())
sketch7.addGeometry(Part.Circle(App.Vector(-12, 0, 0), App.Vector(0, 0, 1), 10), False)
sketch7.addConstraint(Sketcher.Constraint("PointOnObject", 0, 3, -1))
sketch7.addConstraint(Sketcher.Constraint("Diameter", 0, Q("20 mm")))
sketch7.addConstraint(Sketcher.Constraint("DistanceX", 0, 3, -1, 1, Q("12 mm")))
sketch7.setExpression("Constraints[1]", "Params.sketch7_diameter")
pad5 = body5.newObject("PartDesign::Pad", "Pad004")
pad5.Profile = sketch7
pad5.setExpression("Length", "Params.pad5_length")
pad5.Reversed = True
doc.recompute()

body6 = doc.addObject("PartDesign::Body", "Body005")
body6.BaseFeature = body5
boolean = body2.newObject("PartDesign::Boolean", "Boolean")
boolean.Type = "Cut"
boolean.addObjects([body6])
doc.recompute()

boolean2 = body3.newObject("PartDesign::Boolean", "Boolean001")
boolean2.Type = "Cut"
boolean2.addObjects([body5])

doc.recompute()
